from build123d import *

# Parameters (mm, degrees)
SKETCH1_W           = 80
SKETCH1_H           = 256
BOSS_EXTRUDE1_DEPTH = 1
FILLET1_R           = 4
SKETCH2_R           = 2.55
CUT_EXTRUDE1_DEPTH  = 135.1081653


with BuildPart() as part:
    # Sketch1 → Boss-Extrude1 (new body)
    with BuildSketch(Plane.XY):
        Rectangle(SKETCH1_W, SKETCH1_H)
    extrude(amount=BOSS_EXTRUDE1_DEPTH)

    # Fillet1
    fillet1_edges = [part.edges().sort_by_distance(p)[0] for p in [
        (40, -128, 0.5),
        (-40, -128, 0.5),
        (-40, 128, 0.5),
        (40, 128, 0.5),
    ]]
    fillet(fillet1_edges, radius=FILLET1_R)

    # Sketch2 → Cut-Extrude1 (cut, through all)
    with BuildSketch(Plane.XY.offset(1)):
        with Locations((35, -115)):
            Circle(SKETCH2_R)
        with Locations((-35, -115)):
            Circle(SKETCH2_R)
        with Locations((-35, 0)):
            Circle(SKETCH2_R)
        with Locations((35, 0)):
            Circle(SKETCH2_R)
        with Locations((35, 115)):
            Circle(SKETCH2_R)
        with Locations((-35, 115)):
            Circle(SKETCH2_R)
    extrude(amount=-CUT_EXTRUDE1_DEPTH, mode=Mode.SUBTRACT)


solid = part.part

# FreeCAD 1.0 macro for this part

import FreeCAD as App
import Part
import Sketcher
Q = App.Units.Quantity


def edges_at(feature, points):
    """Names of the edges that pass closest to the given points."""
    edges = feature.Shape.Edges
    near = lambda p: min(range(len(edges)), key=lambda i: edges[i].distToShape(Part.Vertex(*p))[0])
    return sorted({f"Edge{near(p) + 1}" for p in points})

doc = App.newDocument("Part")
body = doc.addObject("PartDesign::Body", "Body")

# Sketch on XY plane
sketch1 = body.newObject("Sketcher::SketchObject", "Sketch")
sketch1.AttachmentSupport = (doc.getObject("XY_Plane"), [""])
sketch1.MapMode = "FlatFace"
sketch1.addGeometry([
    Part.LineSegment(App.Vector(-40, 128, 0), App.Vector(-40, -128, 0)),
    Part.LineSegment(App.Vector(-40, -128, 0), App.Vector(40, -128, 0)),
    Part.LineSegment(App.Vector(40, -128, 0), App.Vector(40, 128, 0)),
    Part.LineSegment(App.Vector(40, 128, 0), App.Vector(-40, 128, 0)),
], False)
sketch1.addConstraint([
    Sketcher.Constraint("Coincident", 0, 2, 1, 1),
    Sketcher.Constraint("Coincident", 1, 2, 2, 1),
    Sketcher.Constraint("Coincident", 2, 2, 3, 1),
    Sketcher.Constraint("Coincident", 3, 2, 0, 1),
    Sketcher.Constraint("Vertical", 0),
    Sketcher.Constraint("Horizontal", 1),
    Sketcher.Constraint("Vertical", 2),
    Sketcher.Constraint("Horizontal", 3),
    Sketcher.Constraint("Symmetric", 0, 2, 2, 2, -1, 1),
    Sketcher.Constraint("DistanceX", 1, 1, 1, 2, Q("80 mm")),
    Sketcher.Constraint("DistanceY", 0, 2, 0, 1, Q("256 mm")),
])
pad1 = body.newObject("PartDesign::Pad", "Pad")
pad1.Profile = sketch1
pad1.Length = 1
doc.recompute()

fillet = body.newObject("PartDesign::Fillet", "Fillet")
fillet.Base = (pad1, edges_at(pad1, [
    (40, -128, 0.5),
    (-40, -128, 0.5),
    (-40, 128, 0.5),
    (40, 128, 0.5),
]))
fillet.Radius = 4

# Sketch on XY plane
sketch2 = body.newObject("Sketcher::SketchObject", "Sketch001")
sketch2.AttachmentSupport = (doc.getObject("XY_Plane"), [""])
sketch2.MapMode = "FlatFace"
sketch2.AttachmentOffset = App.Placement(App.Vector(0, 0, 1), App.Rotation())
sketch2.addGeometry([
    Part.Circle(App.Vector(35, -115, 0), App.Vector(0, 0, 1), 2.5),  # 0
    Part.Circle(App.Vector(-35, -115, 0), App.Vector(0, 0, 1), 2.5),  # 1
    Part.Circle(App.Vector(-35, 0, 0), App.Vector(0, 0, 1), 2.5),  # 2
    Part.Circle(App.Vector(35, 0, 0), App.Vector(0, 0, 1), 2.5),  # 3
    Part.Circle(App.Vector(35, 115, 0), App.Vector(0, 0, 1), 2.5),  # 4
    Part.Circle(App.Vector(-35, 115, 0), App.Vector(0, 0, 1), 2.5),  # 5
], False)
sketch2.addConstraint([
    Sketcher.Constraint("Equal", 0, 1),
    Sketcher.Constraint("Equal", 1, 2),
    Sketcher.Constraint("Equal", 2, 3),
    Sketcher.Constraint("Equal", 3, 4),
    Sketcher.Constraint("Equal", 4, 5),
    Sketcher.Constraint("Symmetric", 2, 3, 3, 3, -1, 1),
    Sketcher.Constraint("Symmetric", 1, 3, 4, 3, -1, 1),
    Sketcher.Constraint("Symmetric", 0, 3, 5, 3, -1, 1),
    Sketcher.Constraint("Symmetric", 0, 3, 1, 3, -2),
    Sketcher.Constraint("PointOnObject", 2, 3, -1),
    Sketcher.Constraint("Vertical", 1, 3, 2, 3),
    Sketcher.Constraint("Diameter", 0, Q("5.1 mm")),
    Sketcher.Constraint("DistanceX", -1, 1, 0, 3, Q("35 mm")),
    Sketcher.Constraint("DistanceY", 0, 3, -1, 1, Q("115 mm")),
])
pocket1 = body.newObject("PartDesign::Pocket", "Pocket")
pocket1.Profile = sketch2
pocket1.Type = "ThroughAll"

doc.recompute()
